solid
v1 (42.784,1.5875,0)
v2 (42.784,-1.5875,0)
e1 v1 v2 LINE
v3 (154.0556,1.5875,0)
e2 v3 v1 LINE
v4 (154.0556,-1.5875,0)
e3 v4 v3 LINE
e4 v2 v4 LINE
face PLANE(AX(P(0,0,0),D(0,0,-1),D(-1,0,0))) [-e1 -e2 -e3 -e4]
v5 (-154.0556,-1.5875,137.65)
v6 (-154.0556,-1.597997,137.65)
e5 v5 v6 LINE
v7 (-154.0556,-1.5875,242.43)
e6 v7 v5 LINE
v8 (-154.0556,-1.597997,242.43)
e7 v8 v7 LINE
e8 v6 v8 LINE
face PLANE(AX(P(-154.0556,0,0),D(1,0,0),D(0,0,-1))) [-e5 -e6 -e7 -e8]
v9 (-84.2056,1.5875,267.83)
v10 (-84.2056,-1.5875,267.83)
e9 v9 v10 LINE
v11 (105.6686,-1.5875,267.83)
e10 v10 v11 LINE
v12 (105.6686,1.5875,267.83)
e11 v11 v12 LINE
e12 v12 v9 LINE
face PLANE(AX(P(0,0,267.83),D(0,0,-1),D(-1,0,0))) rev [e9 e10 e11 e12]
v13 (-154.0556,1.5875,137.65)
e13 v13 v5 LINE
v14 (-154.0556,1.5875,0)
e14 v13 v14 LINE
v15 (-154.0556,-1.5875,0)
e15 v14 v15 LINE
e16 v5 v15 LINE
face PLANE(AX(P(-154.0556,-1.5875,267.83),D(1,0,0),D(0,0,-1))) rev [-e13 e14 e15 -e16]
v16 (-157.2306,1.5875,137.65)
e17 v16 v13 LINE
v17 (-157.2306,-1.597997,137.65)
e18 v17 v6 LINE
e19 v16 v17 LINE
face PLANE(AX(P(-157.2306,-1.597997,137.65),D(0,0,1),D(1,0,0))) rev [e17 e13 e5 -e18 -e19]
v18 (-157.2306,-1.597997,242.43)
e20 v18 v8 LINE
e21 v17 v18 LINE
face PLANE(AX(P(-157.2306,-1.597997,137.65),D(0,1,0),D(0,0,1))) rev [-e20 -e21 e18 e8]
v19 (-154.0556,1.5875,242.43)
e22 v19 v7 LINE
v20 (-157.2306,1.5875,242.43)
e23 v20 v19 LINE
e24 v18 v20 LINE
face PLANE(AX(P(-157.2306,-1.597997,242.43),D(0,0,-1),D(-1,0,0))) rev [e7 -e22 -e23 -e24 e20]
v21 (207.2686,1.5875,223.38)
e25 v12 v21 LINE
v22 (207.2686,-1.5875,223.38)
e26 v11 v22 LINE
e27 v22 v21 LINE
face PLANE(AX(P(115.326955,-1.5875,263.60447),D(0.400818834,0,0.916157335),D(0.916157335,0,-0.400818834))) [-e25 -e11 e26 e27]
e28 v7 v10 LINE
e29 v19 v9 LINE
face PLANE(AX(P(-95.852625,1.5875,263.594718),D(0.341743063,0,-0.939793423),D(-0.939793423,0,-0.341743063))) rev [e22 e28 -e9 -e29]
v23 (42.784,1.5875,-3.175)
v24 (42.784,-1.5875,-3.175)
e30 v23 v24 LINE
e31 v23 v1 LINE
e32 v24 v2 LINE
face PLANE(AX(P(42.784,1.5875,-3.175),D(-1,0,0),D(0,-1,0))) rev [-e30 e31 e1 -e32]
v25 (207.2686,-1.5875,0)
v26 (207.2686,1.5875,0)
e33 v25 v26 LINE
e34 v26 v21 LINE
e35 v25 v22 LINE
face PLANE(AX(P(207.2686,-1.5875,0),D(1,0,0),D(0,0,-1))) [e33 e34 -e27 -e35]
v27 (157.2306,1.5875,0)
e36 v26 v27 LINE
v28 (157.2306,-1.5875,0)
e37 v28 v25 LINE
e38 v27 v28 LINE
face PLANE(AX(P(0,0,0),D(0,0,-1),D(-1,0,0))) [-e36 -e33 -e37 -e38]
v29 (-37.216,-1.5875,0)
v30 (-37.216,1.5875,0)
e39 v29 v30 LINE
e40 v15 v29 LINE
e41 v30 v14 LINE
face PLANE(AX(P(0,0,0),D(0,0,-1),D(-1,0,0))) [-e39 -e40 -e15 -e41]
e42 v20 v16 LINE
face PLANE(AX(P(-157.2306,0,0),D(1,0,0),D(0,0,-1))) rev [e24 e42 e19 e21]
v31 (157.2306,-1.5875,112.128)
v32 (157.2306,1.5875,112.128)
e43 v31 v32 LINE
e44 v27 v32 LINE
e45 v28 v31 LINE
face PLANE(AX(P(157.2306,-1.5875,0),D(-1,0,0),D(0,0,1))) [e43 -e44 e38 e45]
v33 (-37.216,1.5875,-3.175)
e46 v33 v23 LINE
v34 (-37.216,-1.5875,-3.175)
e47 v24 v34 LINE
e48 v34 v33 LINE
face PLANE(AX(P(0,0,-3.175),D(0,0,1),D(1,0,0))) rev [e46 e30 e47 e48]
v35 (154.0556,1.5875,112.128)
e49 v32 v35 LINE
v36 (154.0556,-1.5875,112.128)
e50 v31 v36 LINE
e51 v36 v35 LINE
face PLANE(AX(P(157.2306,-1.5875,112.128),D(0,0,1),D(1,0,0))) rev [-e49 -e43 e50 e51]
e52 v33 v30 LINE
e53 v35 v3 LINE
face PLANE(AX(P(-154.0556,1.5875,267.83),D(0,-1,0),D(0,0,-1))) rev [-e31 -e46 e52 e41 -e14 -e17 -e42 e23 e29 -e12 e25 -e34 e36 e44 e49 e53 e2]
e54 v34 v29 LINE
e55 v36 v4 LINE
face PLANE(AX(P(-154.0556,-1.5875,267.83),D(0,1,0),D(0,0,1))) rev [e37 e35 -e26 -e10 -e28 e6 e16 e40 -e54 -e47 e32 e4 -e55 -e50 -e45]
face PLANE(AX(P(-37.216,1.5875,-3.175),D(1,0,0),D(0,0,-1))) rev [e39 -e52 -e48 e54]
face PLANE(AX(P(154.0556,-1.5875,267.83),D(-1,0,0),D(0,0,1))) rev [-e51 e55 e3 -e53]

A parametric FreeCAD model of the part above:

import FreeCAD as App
import Part
import Sketcher

V = App.Vector
Q = App.Units.Quantity


def add_polygon(sketch, points):
    """Adds a closed chain of lines whose ends are joined by coincident constraints."""
    first, n = sketch.GeometryCount, len(points)
    for a, b in zip(points, points[1:] + points[:1]):
        sketch.addGeometry(Part.LineSegment(App.Vector(*a, 0), App.Vector(*b, 0)), False)
    for i in range(n):
        sketch.addConstraint(Sketcher.Constraint("Coincident", first + i, 2, first + (i + 1) % n, 1))

doc = App.newDocument("Part")
body = doc.addObject("PartDesign::Body", "Body")

# Sketch on XY plane
sketch1 = body.newObject("Sketcher::SketchObject", "Sketch")
sketch1.AttachmentSupport = (doc.getObject("XY_Plane"), [""])
sketch1.MapMode = "FlatFace"
add_polygon(sketch1, [(-154.1, 1.6), (-154.1, -1.6), (154.1, -1.6), (154.1, 1.6)])  # lines 0-3
sketch1.addConstraint(Sketcher.Constraint("Vertical", 0))
sketch1.addConstraint(Sketcher.Constraint("Horizontal", 1))
sketch1.addConstraint(Sketcher.Constraint("Vertical", 2))
sketch1.addConstraint(Sketcher.Constraint("Horizontal", 3))
sketch1.addConstraint(Sketcher.Constraint("Symmetric", 0, 2, 2, 2, -1, 1))
sketch1.addConstraint(Sketcher.Constraint("DistanceY", 0, 2, 0, 1, Q("0.125 in")))
sketch1.addConstraint(Sketcher.Constraint("DistanceX", 1, 1, 1, 2, 308.1112))
pad1 = body.newObject("PartDesign::Pad", "Pad")
pad1.Profile = sketch1
pad1.Length = 267.83

# Sketch on YZ plane
sketch2 = body.newObject("Sketcher::SketchObject", "Sketch001")
sketch2.AttachmentSupport = (doc.getObject("YZ_Plane"), [""])
sketch2.MapMode = "FlatFace"
sketch2.AttachmentOffset = App.Placement(V(0, 0, 154.0556), App.Rotation())
add_polygon(sketch2, [(1.6, 267.8), (-1.6, 267.8), (-1.6, 112.1), (1.6, 112.1)])  # lines 0-3
sketch2.addConstraint(Sketcher.Constraint("Horizontal", 0))
sketch2.addConstraint(Sketcher.Constraint("Vertical", 1))
sketch2.addConstraint(Sketcher.Constraint("Horizontal", 2))
sketch2.addConstraint(Sketcher.Constraint("Vertical", 3))
sketch2.addConstraint(Sketcher.Constraint("DistanceY", 1, 2, 1, 1, Q("6.13 in")))
sketch2.addConstraint(Sketcher.Constraint("DistanceX", 0, 2, 0, 1, Q("0.125 in")))
sketch2.addConstraint(Sketcher.Constraint("DistanceX", 0, 2, -1, 1, Q("0.0625 in")))
sketch2.addConstraint(Sketcher.Constraint("DistanceY", -1, 1, 0, 2, 267.83))
pad2 = body.newObject("PartDesign::Pad", "Pad001")
pad2.Profile = sketch2
pad2.Length = Q("0.125 in")

# Sketch on XY plane
sketch3 = body.newObject("Sketcher::SketchObject", "Sketch002")
sketch3.AttachmentSupport = (doc.getObject("XY_Plane"), [""])
sketch3.MapMode = "FlatFace"
sketch3.AttachmentOffset = App.Placement(V(0, 0, 267.83), App.Rotation())
add_polygon(sketch3, [(157.2, 1.6), (157.2, -1.6), (207.3, -1.6), (207.3, 1.6)])  # lines 0-3
sketch3.addConstraint(Sketcher.Constraint("Vertical", 0))
sketch3.addConstraint(Sketcher.Constraint("Horizontal", 1))
sketch3.addConstraint(Sketcher.Constraint("Vertical", 2))
sketch3.addConstraint(Sketcher.Constraint("Horizontal", 3))
sketch3.addConstraint(Sketcher.Constraint("DistanceX", 1, 1, 1, 2, Q("1.97 in")))
sketch3.addConstraint(Sketcher.Constraint("DistanceY", 0, 2, 0, 1, Q("0.125 in")))
sketch3.addConstraint(Sketcher.Constraint("DistanceY", 0, 2, -1, 1, Q("0.0625 in")))
sketch3.addConstraint(Sketcher.Constraint("DistanceX", -1, 1, 0, 2, 157.2306))
pad3 = body.newObject("PartDesign::Pad", "Pad002")
pad3.Profile = sketch3
pad3.Length = 267.83
pad3.Reversed = True

# Sketch on XZ plane
sketch4 = body.newObject("Sketcher::SketchObject", "Sketch003")
sketch4.AttachmentSupport = (doc.getObject("XZ_Plane"), [""])
sketch4.MapMode = "FlatFace"
sketch4.AttachmentOffset = App.Placement(V(0, 0, -0.0625 * 25.4), App.Rotation())
add_polygon(sketch4, [(207, 223), (106, 268), (207, 268)])  # lines 0-2
sketch4.addConstraint(Sketcher.Constraint("Horizontal", 1))
sketch4.addConstraint(Sketcher.Constraint("Vertical", 2))
sketch4.addConstraint(Sketcher.Constraint("DistanceX", 1, 1, 1, 2, Q("4 in")))
sketch4.addConstraint(Sketcher.Constraint("DistanceY", 2, 2, 2, 1, Q("1.75 in")))
sketch4.addConstraint(Sketcher.Constraint("DistanceX", -1, 1, 0, 2, 105.6686))
sketch4.addConstraint(Sketcher.Constraint("DistanceY", -1, 1, 0, 2, 267.83))
pocket1 = body.newObject("PartDesign::Pocket", "Pocket")
pocket1.Profile = sketch4
pocket1.Type = "ThroughAll"
pocket1.Reversed = True

# Sketch on XY plane
sketch5 = body.newObject("Sketcher::SketchObject", "Sketch004")
sketch5.AttachmentSupport = (doc.getObject("XY_Plane"), [""])
sketch5.MapMode = "FlatFace"
add_polygon(sketch5, [(42.8, 1.6), (42.8, -1.6), (-37.2, -1.6), (-37.2, 1.6)])  # lines 0-3
sketch5.addConstraint(Sketcher.Constraint("Vertical", 0))
sketch5.addConstraint(Sketcher.Constraint("Horizontal", 1))
sketch5.addConstraint(Sketcher.Constraint("Vertical", 2))
sketch5.addConstraint(Sketcher.Constraint("Horizontal", 3))
sketch5.addConstraint(Sketcher.Constraint("DistanceY", 0, 2, 0, 1, Q("0.125 in")))
sketch5.addConstraint(Sketcher.Constraint("DistanceY", 0, 2, -1, 1, Q("0.0625 in")))
sketch5.addConstraint(Sketcher.Constraint("DistanceX", 1, 2, 1, 1, 80.0))
sketch5.addConstraint(Sketcher.Constraint("DistanceX", -1, 1, 0, 2, 42.784))
pad4 = body.newObject("PartDesign::Pad", "Pad003")
pad4.Profile = sketch5
pad4.Length = Q("0.125 in")
pad4.Reversed = True

# Sketch on XZ plane
sketch6 = body.newObject("Sketcher::SketchObject", "Sketch005")
sketch6.AttachmentSupport = (doc.getObject("XZ_Plane"), [""])
sketch6.MapMode = "FlatFace"
sketch6.AttachmentOffset = App.Placement(V(0, 0, 0.0625 * 25.4), App.Rotation())
add_polygon(sketch6, [(-154, 242), (-84, 268), (-154, 268)])  # lines 0-2
sketch6.addConstraint(Sketcher.Constraint("Horizontal", 1))
sketch6.addConstraint(Sketcher.Constraint("Vertical", 2))
sketch6.addConstraint(Sketcher.Constraint("DistanceY", 2, 2, 2, 1, Q("1 in")))
sketch6.addConstraint(Sketcher.Constraint("DistanceX", 1, 2, 1, 1, Q("2.75 in")))
sketch6.addConstraint(Sketcher.Constraint("DistanceX", 0, 2, -1, 1, 84.2056))
sketch6.addConstraint(Sketcher.Constraint("DistanceY", -1, 1, 0, 2, 267.83))
pocket2 = body.newObject("PartDesign::Pocket", "Pocket001")
pocket2.Profile = sketch6
pocket2.Type = "ThroughAll"

# Sketch on YZ plane
sketch7 = body.newObject("Sketcher::SketchObject", "Sketch006")
sketch7.AttachmentSupport = (doc.getObject("YZ_Plane"), [""])
sketch7.MapMode = "FlatFace"
sketch7.AttachmentOffset = App.Placement(V(0, 0, -154.0556), App.Rotation())
add_polygon(sketch7, [(1.6, 137.7), (-1.6, 137.7), (-1.6, 242.4), (1.6, 242.4)])  # lines 0-3
sketch7.addConstraint(Sketcher.Constraint("Horizontal", 0))
sketch7.addConstraint(Sketcher.Constraint("Vertical", 1))
sketch7.addConstraint(Sketcher.Constraint("Horizontal", 2))
sketch7.addConstraint(Sketcher.Constraint("Vertical", 3))
sketch7.addConstraint(Sketcher.Constraint("DistanceX", -1, 1, 2, 2, Q("0.0625 in")))
sketch7.addConstraint(Sketcher.Constraint("DistanceY", 1, 1, 1, 2, 104.78))
sketch7.addConstraint(Sketcher.Constraint("DistanceY", -1, 1, 0, 2, 137.65))
sketch7.addConstraint(Sketcher.Constraint("DistanceX", 0, 2, 0, 1, 3.185497))
pad5 = body.newObject("PartDesign::Pad", "Pad004")
pad5.Profile = sketch7
pad5.Length = Q("0.125 in")
pad5.Reversed = True

doc.recompute()
